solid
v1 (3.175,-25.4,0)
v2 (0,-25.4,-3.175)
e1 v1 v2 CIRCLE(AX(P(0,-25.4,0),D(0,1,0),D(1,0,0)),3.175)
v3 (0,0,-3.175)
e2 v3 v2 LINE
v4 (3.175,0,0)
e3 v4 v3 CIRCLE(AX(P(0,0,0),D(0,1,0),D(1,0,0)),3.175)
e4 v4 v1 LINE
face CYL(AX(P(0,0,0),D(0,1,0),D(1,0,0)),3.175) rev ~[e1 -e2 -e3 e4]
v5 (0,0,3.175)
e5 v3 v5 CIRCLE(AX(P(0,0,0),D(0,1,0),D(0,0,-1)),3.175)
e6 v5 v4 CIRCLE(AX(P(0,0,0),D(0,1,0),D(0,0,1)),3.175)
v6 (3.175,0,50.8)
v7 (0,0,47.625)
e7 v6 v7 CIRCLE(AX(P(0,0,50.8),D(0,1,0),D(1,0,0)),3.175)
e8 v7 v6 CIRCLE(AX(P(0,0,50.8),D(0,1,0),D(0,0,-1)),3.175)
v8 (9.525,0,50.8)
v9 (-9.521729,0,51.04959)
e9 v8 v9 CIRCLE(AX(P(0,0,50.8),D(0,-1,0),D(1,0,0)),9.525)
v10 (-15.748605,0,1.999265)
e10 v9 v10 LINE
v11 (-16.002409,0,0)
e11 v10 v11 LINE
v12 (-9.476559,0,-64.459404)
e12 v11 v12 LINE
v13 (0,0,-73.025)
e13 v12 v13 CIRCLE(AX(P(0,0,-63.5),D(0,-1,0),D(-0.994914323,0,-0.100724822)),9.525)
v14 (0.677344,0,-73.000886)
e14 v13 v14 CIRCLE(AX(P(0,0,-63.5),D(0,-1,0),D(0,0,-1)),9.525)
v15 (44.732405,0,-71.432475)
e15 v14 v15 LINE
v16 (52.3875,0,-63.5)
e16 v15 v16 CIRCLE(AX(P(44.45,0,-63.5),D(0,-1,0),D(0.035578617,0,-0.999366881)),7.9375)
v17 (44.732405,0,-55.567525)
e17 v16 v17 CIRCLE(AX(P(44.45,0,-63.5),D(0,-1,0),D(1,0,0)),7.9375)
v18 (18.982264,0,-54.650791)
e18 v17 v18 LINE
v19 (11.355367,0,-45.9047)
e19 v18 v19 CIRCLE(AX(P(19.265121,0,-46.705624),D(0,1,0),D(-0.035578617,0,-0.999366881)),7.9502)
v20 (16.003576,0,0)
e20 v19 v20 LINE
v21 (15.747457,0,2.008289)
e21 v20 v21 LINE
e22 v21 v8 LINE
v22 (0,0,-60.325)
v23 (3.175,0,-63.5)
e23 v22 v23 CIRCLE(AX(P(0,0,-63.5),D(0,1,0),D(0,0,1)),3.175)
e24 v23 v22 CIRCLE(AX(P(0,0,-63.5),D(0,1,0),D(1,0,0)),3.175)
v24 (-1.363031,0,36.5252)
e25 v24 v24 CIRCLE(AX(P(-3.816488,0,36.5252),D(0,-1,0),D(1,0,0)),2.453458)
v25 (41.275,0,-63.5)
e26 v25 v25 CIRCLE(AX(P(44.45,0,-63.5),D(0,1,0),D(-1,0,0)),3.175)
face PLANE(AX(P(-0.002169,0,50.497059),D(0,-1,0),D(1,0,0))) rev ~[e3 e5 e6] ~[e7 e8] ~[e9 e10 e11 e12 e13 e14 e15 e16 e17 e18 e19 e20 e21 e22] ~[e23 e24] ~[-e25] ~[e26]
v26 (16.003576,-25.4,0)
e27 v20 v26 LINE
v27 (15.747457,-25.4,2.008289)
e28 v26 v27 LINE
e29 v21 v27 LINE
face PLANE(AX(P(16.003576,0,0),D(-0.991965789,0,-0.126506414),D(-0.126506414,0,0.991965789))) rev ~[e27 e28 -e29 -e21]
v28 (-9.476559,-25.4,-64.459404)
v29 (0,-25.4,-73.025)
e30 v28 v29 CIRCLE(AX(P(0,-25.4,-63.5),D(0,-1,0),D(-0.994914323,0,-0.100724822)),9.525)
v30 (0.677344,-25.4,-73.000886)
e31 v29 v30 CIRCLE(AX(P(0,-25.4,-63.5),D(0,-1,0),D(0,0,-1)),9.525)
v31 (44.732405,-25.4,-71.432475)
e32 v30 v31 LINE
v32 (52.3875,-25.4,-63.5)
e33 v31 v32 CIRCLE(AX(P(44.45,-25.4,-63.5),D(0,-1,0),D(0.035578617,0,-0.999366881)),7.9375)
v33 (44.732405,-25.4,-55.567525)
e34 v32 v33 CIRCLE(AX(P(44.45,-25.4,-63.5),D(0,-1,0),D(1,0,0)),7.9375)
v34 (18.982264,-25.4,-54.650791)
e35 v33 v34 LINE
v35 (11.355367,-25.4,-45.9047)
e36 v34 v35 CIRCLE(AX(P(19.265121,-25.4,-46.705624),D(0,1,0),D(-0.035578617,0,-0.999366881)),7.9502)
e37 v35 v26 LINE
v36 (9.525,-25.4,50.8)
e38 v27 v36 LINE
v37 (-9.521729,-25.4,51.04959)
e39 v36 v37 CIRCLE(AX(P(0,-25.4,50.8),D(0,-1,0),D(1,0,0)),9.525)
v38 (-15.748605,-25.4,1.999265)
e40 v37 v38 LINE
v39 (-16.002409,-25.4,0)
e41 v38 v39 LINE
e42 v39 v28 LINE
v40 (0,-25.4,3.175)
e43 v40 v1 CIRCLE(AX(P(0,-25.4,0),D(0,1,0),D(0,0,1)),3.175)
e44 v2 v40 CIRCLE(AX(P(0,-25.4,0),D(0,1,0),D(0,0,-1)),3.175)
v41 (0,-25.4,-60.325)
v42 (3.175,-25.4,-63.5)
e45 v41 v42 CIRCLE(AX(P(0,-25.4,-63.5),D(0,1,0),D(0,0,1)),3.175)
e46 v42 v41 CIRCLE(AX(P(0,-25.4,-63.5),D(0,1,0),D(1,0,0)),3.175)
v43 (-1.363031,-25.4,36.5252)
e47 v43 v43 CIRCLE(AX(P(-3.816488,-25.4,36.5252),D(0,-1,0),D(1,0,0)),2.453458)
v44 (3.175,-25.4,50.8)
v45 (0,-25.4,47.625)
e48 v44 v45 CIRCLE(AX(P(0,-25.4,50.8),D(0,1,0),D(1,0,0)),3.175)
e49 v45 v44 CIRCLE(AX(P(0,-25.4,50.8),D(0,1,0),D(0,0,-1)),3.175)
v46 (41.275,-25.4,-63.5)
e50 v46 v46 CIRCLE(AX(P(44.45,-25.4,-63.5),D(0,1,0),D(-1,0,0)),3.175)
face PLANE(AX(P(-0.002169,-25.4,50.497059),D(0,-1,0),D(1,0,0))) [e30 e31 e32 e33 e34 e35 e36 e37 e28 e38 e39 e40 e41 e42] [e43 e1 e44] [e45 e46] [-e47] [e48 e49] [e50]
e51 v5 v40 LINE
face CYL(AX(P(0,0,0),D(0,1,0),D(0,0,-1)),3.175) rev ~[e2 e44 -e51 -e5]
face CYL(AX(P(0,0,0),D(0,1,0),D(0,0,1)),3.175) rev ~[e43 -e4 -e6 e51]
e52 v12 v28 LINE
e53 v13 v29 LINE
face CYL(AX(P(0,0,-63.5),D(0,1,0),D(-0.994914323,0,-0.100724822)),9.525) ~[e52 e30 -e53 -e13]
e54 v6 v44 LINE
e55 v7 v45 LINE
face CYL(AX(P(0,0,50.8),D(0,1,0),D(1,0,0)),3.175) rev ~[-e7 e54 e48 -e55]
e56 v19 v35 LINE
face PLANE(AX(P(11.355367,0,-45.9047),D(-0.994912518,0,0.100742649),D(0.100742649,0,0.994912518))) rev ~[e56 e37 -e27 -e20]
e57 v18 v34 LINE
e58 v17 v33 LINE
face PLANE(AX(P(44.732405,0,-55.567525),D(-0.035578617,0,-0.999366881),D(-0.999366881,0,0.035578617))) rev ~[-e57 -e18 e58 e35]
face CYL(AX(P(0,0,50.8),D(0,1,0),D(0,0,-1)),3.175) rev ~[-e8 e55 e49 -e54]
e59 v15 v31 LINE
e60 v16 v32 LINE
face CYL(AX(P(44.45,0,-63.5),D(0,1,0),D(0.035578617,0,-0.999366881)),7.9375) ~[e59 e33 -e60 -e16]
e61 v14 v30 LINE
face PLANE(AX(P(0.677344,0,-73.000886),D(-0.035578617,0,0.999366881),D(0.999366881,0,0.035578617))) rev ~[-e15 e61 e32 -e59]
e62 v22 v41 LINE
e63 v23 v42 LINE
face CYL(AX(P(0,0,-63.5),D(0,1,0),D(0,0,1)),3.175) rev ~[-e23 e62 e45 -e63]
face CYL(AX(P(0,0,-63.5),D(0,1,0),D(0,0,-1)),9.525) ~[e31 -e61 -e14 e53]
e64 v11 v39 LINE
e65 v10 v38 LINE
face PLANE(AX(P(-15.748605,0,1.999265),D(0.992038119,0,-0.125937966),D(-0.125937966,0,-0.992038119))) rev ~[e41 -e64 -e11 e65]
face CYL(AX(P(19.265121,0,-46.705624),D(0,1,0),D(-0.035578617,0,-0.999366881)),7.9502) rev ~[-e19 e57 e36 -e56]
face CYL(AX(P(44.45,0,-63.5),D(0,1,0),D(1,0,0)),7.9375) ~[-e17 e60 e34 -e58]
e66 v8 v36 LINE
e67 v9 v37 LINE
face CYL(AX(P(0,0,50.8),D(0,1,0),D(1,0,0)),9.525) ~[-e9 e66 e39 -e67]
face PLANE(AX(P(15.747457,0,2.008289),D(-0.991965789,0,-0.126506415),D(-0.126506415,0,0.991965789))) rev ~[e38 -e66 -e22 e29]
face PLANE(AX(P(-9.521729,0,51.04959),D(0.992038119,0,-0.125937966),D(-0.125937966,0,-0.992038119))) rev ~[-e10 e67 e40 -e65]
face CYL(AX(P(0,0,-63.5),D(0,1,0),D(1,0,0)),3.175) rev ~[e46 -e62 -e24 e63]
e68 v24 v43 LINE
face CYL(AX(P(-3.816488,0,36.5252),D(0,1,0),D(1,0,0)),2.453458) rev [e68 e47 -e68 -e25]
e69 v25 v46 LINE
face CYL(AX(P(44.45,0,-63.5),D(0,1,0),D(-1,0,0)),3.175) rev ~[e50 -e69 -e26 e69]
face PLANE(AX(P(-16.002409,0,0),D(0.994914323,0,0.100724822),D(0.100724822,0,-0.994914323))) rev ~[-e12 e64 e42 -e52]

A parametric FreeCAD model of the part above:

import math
import FreeCAD as App
import Part
import Sketcher
Q = App.Units.Quantity

doc = App.newDocument("Part")
body = doc.addObject("PartDesign::Body", "Body")

# Sketch on XZ plane
sketch1 = body.newObject("Sketcher::SketchObject", "Sketch")
sketch1.AttachmentSupport = (doc.getObject("XZ_Plane"), [""])
sketch1.MapMode = "FlatFace"
sketch1.addGeometry(Part.LineSegment(App.Vector(0.7, -73, 0), App.Vector(44.7, -71.4, 0)), False)
sketch1.addGeometry(Part.ArcOfCircle(Part.Circle(App.Vector(44.5, -63.5, 0), App.Vector(0, 0, 1), 7.9), math.radians(-88), math.radians(0)), False)
sketch1.addGeometry(Part.ArcOfCircle(Part.Circle(App.Vector(44.5, -63.5, 0), App.Vector(0, 0, 1), 7.9), math.radians(0), math.radians(88)), False)
sketch1.addGeometry(Part.LineSegment(App.Vector(44.7, -55.6, 0), App.Vector(19, -54.7, 0)), False)
sketch1.addGeometry(Part.ArcOfCircle(Part.Circle(App.Vector(19.3, -46.7, 0), App.Vector(0, 0, 1), 8), math.radians(174), math.radians(268)), False)
sketch1.addGeometry(Part.LineSegment(App.Vector(11.4, -45.9, 0), App.Vector(16, 0, 0)), False)
sketch1.addGeometry(Part.LineSegment(App.Vector(16, 0, 0), App.Vector(15.7, 2, 0)), False)
sketch1.addGeometry(Part.LineSegment(App.Vector(15.7, 2, 0), App.Vector(9.5, 50.8, 0)), False)
sketch1.addGeometry(Part.ArcOfCircle(Part.Circle(App.Vector(0, 50.8, 0), App.Vector(0, 0, 1), 9.5), math.radians(0), math.radians(178)), False)
sketch1.addGeometry(Part.LineSegment(App.Vector(-9.5, 51, 0), App.Vector(-15.7, 2, 0)), False)
sketch1.addGeometry(Part.LineSegment(App.Vector(-15.7, 2, 0), App.Vector(-16, 0, 0)), False)
sketch1.addGeometry(Part.LineSegment(App.Vector(-16, 0, 0), App.Vector(-9.5, -64.5, 0)), False)
sketch1.addGeometry(Part.ArcOfCircle(Part.Circle(App.Vector(0, -63.5, 0), App.Vector(0, 0, 1), 9.5), math.radians(-174), math.radians(-90)), False)
sketch1.addGeometry(Part.ArcOfCircle(Part.Circle(App.Vector(0, -63.5, 0), App.Vector(0, 0, 1), 9.5), math.radians(-90), math.radians(-85.92)), False)
sketch1.addGeometry(Part.ArcOfCircle(Part.Circle(App.Vector(0, -63.5, 0), App.Vector(0, 0, 1), 3.2), math.radians(90), math.radians(360)), False)
sketch1.addGeometry(Part.ArcOfCircle(Part.Circle(App.Vector(0, -63.5, 0), App.Vector(0, 0, 1), 3.2), math.radians(0), math.radians(90)), False)
sketch1.addGeometry(Part.Circle(App.Vector(44.5, -63.5, 0), App.Vector(0, 0, 1), 3.2), False)
sketch1.addGeometry(Part.ArcOfCircle(Part.Circle(App.Vector(0, 0, 0), App.Vector(0, 0, 1), 3.2), math.radians(0), math.radians(90)), False)
sketch1.addGeometry(Part.ArcOfCircle(Part.Circle(App.Vector(0, 0, 0), App.Vector(0, 0, 1), 3.2), math.radians(-90), math.radians(0)), False)
sketch1.addGeometry(Part.ArcOfCircle(Part.Circle(App.Vector(0, 0, 0), App.Vector(0, 0, 1), 3.2), math.radians(90), math.radians(270)), False)
sketch1.addGeometry(Part.Circle(App.Vector(-3.8, 36.5, 0), App.Vector(0, 0, 1), 2.5), False)
sketch1.addGeometry(Part.ArcOfCircle(Part.Circle(App.Vector(0, 50.8, 0), App.Vector(0, 0, 1), 3.2), math.radians(0), math.radians(270)), False)
sketch1.addGeometry(Part.ArcOfCircle(Part.Circle(App.Vector(0, 50.8, 0), App.Vector(0, 0, 1), 3.2), math.radians(-90), math.radians(0)), False)
sketch1.addConstraint(Sketcher.Constraint("Tangent", 0, 2, 1, 1))
sketch1.addConstraint(Sketcher.Constraint("Tangent", 1, 2, 2, 1))
sketch1.addConstraint(Sketcher.Constraint("Tangent", 2, 2, 3, 1))
sketch1.addConstraint(Sketcher.Constraint("Tangent", 3, 2, 4, 2))
sketch1.addConstraint(Sketcher.Constraint("Tangent", 4, 1, 5, 1))
sketch1.addConstraint(Sketcher.Constraint("Coincident", 5, 2, 6, 1))
sketch1.addConstraint(Sketcher.Constraint("Coincident", 6, 2, 7, 1))
sketch1.addConstraint(Sketcher.Constraint("Coincident", 7, 2, 8, 1))
sketch1.addConstraint(Sketcher.Constraint("Coincident", 8, 2, 9, 1))
sketch1.addConstraint(Sketcher.Constraint("Coincident", 9, 2, 10, 1))
sketch1.addConstraint(Sketcher.Constraint("Coincident", 10, 2, 11, 1))
sketch1.addConstraint(Sketcher.Constraint("Tangent", 11, 2, 12, 1))
sketch1.addConstraint(Sketcher.Constraint("Tangent", 12, 2, 13, 1))
sketch1.addConstraint(Sketcher.Constraint("Coincident", 13, 2, 0, 1))
sketch1.addConstraint(Sketcher.Constraint("Tangent", 14, 1, 15, 2))
sketch1.addConstraint(Sketcher.Constraint("Coincident", 15, 1, 14, 2))
sketch1.addConstraint(Sketcher.Constraint("Tangent", 17, 1, 18, 2))
sketch1.addConstraint(Sketcher.Constraint("Tangent", 18, 1, 19, 2))
sketch1.addConstraint(Sketcher.Constraint("Tangent", 19, 1, 17, 2))
sketch1.addConstraint(Sketcher.Constraint("Tangent", 21, 1, 22, 2))
sketch1.addConstraint(Sketcher.Constraint("Coincident", 22, 1, 21, 2))
sketch1.addConstraint(Sketcher.Constraint("Coincident", 17, 3, -1, 1))
sketch1.addConstraint(Sketcher.Constraint("Coincident", 14, 3, 12, 3))
sketch1.addConstraint(Sketcher.Constraint("Coincident", 16, 3, 1, 3))
sketch1.addConstraint(Sketcher.Constraint("Coincident", 21, 3, 8, 3))
sketch1.addConstraint(Sketcher.Constraint("Equal", 1, 2))
sketch1.addConstraint(Sketcher.Constraint("Equal", 8, 12))
sketch1.addConstraint(Sketcher.Constraint("Equal", 12, 13))
sketch1.addConstraint(Sketcher.Constraint("Equal", 15, 16))
sketch1.addConstraint(Sketcher.Constraint("Equal", 16, 17))
sketch1.addConstraint(Sketcher.Constraint("Equal", 19, 21))
sketch1.addConstraint(Sketcher.Constraint("PointOnObject", 8, 3, -2))
sketch1.addConstraint(Sketcher.Constraint("PointOnObject", 12, 3, -2))
sketch1.addConstraint(Sketcher.Constraint("PointOnObject", 5, 2, -1))
sketch1.addConstraint(Sketcher.Constraint("PointOnObject", 10, 2, -1))
sketch1.addConstraint(Sketcher.Constraint("PointOnObject", 12, 2, -2))
sketch1.addConstraint(Sketcher.Constraint("PointOnObject", 14, 1, -2))
sketch1.addConstraint(Sketcher.Constraint("PointOnObject", 17, 1, -1))
sketch1.addConstraint(Sketcher.Constraint("PointOnObject", 18, 1, -2))
sketch1.addConstraint(Sketcher.Constraint("PointOnObject", 19, 1, -2))
sketch1.addConstraint(Sketcher.Constraint("PointOnObject", 22, 1, -2))
sketch1.addConstraint(Sketcher.Constraint("Parallel", 6, 7))
sketch1.addConstraint(Sketcher.Constraint("Parallel", 9, 10))
sketch1.addConstraint(Sketcher.Constraint("Horizontal", 2, 3, 12, 3))
sketch1.addConstraint(Sketcher.Constraint("Horizontal", 16, 3, 1, 2))
sketch1.addConstraint(Sketcher.Constraint("Horizontal", 22, 3, 7, 2))
sketch1.addConstraint(Sketcher.Constraint("Horizontal", 1, 2, 15, 1))
sketch1.addConstraint(Sketcher.Constraint("Horizontal", 7, 2, 21, 1))
sketch1.addConstraint(Sketcher.Constraint("Vertical", 0, 2, 2, 2))
sketch1.addConstraint(Sketcher.Constraint("Diameter", 16, Q("0.25 in")))
sketch1.addConstraint(Sketcher.Constraint("DistanceY", -1, 1, 8, 3, Q("2 in")))
sketch1.addConstraint(Sketcher.Constraint("Radius", 1, Q("0.3125 in")))
sketch1.addConstraint(Sketcher.Constraint("Radius", 4, Q("0.313 in")))
sketch1.addConstraint(Sketcher.Constraint("Radius", 8, Q("0.375 in")))
sketch1.addConstraint(Sketcher.Constraint("DistanceY", 1, 3, -1, 1, Q("2.5 in")))
sketch1.addConstraint(Sketcher.Constraint("DistanceX", -1, 1, 1, 3, Q("1.75 in")))
sketch1.addConstraint(Sketcher.Constraint("DistanceY", -1, 1, 20, 3, Q("1.438 in")))
sketch1.addConstraint(Sketcher.Constraint("Diameter", 20, 4.906915))
sketch1.addConstraint(Sketcher.Constraint("DistanceY", 11, 2, 4, 1, Q("0.7305002 in")))
sketch1.addConstraint(Sketcher.Constraint("Distance", 11, 64.788899))
sketch1.addConstraint(Sketcher.Constraint("Distance", 0, 44.082972))
sketch1.addConstraint(Sketcher.Constraint("Distance", 7, 49.186889))
sketch1.addConstraint(Sketcher.Constraint("Distance", 9, 49.443992))
sketch1.addConstraint(Sketcher.Constraint("Distance", 10, 2.015311))
sketch1.addConstraint(Sketcher.Constraint("DistanceX", -1, 1, 4, 3, 19.265121))
sketch1.addConstraint(Sketcher.Constraint("DistanceX", 20, 3, -1, 1, 3.816488))
pad1 = body.newObject("PartDesign::Pad", "Pad")
pad1.Profile = sketch1
pad1.Length = Q("1 in")

doc.recompute()
